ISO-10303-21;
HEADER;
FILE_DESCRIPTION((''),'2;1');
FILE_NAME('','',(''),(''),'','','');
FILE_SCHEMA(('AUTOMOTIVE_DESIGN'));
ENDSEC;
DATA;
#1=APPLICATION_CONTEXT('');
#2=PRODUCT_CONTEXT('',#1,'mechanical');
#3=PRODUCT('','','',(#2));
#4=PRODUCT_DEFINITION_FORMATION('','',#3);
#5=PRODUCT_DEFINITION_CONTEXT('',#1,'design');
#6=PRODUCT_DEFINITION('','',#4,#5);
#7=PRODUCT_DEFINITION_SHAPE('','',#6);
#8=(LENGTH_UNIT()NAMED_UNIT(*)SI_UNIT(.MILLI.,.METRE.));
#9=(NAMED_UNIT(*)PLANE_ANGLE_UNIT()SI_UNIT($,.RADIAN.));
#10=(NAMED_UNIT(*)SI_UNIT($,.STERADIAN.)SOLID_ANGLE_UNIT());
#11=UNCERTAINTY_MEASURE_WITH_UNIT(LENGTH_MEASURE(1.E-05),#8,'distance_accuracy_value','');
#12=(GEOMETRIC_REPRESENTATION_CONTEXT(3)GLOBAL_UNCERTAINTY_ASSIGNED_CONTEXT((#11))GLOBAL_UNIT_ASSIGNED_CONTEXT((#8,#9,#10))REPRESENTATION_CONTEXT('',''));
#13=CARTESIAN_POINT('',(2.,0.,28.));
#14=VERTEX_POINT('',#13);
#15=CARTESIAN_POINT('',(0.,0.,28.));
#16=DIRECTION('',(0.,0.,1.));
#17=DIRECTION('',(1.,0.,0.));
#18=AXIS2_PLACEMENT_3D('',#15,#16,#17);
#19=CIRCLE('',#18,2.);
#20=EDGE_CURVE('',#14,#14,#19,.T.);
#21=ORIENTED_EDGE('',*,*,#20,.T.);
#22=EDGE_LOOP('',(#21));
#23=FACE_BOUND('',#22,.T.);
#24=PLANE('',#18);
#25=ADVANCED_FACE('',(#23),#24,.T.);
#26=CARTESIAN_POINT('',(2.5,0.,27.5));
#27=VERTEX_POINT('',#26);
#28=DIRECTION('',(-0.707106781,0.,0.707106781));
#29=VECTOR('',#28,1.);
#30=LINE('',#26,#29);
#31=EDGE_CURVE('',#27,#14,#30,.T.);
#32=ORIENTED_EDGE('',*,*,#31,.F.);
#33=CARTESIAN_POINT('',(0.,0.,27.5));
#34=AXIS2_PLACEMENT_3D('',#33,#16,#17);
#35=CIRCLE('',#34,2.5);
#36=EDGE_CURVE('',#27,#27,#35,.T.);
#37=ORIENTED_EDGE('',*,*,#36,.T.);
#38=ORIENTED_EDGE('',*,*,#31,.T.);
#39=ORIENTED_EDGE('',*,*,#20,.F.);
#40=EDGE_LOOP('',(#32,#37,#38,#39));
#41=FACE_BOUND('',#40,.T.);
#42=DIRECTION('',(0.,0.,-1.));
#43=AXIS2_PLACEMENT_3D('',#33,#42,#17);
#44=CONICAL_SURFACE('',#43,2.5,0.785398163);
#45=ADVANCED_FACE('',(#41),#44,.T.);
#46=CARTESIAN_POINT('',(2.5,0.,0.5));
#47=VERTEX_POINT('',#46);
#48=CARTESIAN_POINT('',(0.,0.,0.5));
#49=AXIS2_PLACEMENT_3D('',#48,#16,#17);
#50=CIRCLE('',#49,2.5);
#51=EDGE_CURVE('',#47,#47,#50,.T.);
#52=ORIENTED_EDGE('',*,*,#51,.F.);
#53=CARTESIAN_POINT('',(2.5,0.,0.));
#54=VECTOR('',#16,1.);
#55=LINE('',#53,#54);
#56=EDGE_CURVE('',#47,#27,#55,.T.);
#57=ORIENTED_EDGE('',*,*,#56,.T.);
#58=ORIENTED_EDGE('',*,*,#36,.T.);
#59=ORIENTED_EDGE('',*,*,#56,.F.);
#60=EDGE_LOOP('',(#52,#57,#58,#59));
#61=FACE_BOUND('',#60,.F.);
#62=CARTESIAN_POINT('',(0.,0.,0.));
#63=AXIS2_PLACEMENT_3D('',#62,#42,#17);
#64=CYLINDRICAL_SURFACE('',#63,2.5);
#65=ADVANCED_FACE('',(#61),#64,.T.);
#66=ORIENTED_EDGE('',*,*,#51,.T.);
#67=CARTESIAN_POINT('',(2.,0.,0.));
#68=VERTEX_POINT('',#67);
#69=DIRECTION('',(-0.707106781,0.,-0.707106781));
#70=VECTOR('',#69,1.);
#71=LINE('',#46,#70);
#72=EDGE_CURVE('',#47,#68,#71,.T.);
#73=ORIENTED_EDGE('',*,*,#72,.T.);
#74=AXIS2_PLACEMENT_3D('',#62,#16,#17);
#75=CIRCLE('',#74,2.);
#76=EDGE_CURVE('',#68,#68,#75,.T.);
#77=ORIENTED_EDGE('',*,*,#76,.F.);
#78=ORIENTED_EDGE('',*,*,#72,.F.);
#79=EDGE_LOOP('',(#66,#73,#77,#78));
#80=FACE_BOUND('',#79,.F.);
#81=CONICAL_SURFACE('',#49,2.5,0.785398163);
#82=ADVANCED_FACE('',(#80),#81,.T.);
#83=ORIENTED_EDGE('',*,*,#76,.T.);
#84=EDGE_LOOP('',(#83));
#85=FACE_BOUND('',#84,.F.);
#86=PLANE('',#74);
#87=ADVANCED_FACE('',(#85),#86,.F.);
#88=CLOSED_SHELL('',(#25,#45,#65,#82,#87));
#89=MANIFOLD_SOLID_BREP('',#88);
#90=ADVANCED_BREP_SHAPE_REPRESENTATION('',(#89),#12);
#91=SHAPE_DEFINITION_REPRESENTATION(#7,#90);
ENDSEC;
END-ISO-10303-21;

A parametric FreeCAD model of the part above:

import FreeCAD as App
import Part
import Sketcher
Q = App.Units.Quantity


def edges_at(feature, points):
    """Names of the edges that pass closest to the given points."""
    edges = feature.Shape.Edges
    near = lambda p: min(range(len(edges)), key=lambda i: edges[i].distToShape(Part.Vertex(*p))[0])
    return sorted({f"Edge{near(p) + 1}" for p in points})

doc = App.newDocument("Part")
params = doc.addObject("Spreadsheet::Sheet", "Params")
for row, (alias, value) in enumerate([
    ("sketch1_diameter", "5 mm"),
    ("pad1_length", "28 mm"),
    ("chamfer_size", "0.5 mm"),
], start=1):
    params.set(f"A{row}", alias)
    params.set(f"B{row}", "=" + value)
    params.setAlias(f"B{row}", alias)

body = doc.addObject("PartDesign::Body", "Body")

sketch1 = doc.addObject("Sketcher::SketchObject", "Sketch")
body.addObject(sketch1)
sketch1.AttachmentSupport = (doc.XY_Plane, [""])
sketch1.MapMode = "FlatFace"
sketch1.addGeometry(Part.Circle(App.Vector(0, 0, 0), App.Vector(0, 0, 1), 2.5), False)
sketch1.addConstraint([
    Sketcher.Constraint("Coincident", 0, 3, -1, 1),
    Sketcher.Constraint("Diameter", 0, Q("5 mm")),
])
sketch1.setExpression("Constraints[1]", "Params.sketch1_diameter")
pad1 = doc.addObject("PartDesign::Pad", "Pad")
body.addObject(pad1)
pad1.Profile = sketch1
pad1.setExpression("Length", "Params.pad1_length")
doc.recompute()

chamfer = doc.addObject("PartDesign::Chamfer", "Chamfer")
body.addObject(chamfer)
chamfer.Base = (pad1, edges_at(pad1, [(-2.5, 0, 28), (-2.5, 0, 0)]))
chamfer.setExpression("Size", "Params.chamfer_size")

doc.recompute()
